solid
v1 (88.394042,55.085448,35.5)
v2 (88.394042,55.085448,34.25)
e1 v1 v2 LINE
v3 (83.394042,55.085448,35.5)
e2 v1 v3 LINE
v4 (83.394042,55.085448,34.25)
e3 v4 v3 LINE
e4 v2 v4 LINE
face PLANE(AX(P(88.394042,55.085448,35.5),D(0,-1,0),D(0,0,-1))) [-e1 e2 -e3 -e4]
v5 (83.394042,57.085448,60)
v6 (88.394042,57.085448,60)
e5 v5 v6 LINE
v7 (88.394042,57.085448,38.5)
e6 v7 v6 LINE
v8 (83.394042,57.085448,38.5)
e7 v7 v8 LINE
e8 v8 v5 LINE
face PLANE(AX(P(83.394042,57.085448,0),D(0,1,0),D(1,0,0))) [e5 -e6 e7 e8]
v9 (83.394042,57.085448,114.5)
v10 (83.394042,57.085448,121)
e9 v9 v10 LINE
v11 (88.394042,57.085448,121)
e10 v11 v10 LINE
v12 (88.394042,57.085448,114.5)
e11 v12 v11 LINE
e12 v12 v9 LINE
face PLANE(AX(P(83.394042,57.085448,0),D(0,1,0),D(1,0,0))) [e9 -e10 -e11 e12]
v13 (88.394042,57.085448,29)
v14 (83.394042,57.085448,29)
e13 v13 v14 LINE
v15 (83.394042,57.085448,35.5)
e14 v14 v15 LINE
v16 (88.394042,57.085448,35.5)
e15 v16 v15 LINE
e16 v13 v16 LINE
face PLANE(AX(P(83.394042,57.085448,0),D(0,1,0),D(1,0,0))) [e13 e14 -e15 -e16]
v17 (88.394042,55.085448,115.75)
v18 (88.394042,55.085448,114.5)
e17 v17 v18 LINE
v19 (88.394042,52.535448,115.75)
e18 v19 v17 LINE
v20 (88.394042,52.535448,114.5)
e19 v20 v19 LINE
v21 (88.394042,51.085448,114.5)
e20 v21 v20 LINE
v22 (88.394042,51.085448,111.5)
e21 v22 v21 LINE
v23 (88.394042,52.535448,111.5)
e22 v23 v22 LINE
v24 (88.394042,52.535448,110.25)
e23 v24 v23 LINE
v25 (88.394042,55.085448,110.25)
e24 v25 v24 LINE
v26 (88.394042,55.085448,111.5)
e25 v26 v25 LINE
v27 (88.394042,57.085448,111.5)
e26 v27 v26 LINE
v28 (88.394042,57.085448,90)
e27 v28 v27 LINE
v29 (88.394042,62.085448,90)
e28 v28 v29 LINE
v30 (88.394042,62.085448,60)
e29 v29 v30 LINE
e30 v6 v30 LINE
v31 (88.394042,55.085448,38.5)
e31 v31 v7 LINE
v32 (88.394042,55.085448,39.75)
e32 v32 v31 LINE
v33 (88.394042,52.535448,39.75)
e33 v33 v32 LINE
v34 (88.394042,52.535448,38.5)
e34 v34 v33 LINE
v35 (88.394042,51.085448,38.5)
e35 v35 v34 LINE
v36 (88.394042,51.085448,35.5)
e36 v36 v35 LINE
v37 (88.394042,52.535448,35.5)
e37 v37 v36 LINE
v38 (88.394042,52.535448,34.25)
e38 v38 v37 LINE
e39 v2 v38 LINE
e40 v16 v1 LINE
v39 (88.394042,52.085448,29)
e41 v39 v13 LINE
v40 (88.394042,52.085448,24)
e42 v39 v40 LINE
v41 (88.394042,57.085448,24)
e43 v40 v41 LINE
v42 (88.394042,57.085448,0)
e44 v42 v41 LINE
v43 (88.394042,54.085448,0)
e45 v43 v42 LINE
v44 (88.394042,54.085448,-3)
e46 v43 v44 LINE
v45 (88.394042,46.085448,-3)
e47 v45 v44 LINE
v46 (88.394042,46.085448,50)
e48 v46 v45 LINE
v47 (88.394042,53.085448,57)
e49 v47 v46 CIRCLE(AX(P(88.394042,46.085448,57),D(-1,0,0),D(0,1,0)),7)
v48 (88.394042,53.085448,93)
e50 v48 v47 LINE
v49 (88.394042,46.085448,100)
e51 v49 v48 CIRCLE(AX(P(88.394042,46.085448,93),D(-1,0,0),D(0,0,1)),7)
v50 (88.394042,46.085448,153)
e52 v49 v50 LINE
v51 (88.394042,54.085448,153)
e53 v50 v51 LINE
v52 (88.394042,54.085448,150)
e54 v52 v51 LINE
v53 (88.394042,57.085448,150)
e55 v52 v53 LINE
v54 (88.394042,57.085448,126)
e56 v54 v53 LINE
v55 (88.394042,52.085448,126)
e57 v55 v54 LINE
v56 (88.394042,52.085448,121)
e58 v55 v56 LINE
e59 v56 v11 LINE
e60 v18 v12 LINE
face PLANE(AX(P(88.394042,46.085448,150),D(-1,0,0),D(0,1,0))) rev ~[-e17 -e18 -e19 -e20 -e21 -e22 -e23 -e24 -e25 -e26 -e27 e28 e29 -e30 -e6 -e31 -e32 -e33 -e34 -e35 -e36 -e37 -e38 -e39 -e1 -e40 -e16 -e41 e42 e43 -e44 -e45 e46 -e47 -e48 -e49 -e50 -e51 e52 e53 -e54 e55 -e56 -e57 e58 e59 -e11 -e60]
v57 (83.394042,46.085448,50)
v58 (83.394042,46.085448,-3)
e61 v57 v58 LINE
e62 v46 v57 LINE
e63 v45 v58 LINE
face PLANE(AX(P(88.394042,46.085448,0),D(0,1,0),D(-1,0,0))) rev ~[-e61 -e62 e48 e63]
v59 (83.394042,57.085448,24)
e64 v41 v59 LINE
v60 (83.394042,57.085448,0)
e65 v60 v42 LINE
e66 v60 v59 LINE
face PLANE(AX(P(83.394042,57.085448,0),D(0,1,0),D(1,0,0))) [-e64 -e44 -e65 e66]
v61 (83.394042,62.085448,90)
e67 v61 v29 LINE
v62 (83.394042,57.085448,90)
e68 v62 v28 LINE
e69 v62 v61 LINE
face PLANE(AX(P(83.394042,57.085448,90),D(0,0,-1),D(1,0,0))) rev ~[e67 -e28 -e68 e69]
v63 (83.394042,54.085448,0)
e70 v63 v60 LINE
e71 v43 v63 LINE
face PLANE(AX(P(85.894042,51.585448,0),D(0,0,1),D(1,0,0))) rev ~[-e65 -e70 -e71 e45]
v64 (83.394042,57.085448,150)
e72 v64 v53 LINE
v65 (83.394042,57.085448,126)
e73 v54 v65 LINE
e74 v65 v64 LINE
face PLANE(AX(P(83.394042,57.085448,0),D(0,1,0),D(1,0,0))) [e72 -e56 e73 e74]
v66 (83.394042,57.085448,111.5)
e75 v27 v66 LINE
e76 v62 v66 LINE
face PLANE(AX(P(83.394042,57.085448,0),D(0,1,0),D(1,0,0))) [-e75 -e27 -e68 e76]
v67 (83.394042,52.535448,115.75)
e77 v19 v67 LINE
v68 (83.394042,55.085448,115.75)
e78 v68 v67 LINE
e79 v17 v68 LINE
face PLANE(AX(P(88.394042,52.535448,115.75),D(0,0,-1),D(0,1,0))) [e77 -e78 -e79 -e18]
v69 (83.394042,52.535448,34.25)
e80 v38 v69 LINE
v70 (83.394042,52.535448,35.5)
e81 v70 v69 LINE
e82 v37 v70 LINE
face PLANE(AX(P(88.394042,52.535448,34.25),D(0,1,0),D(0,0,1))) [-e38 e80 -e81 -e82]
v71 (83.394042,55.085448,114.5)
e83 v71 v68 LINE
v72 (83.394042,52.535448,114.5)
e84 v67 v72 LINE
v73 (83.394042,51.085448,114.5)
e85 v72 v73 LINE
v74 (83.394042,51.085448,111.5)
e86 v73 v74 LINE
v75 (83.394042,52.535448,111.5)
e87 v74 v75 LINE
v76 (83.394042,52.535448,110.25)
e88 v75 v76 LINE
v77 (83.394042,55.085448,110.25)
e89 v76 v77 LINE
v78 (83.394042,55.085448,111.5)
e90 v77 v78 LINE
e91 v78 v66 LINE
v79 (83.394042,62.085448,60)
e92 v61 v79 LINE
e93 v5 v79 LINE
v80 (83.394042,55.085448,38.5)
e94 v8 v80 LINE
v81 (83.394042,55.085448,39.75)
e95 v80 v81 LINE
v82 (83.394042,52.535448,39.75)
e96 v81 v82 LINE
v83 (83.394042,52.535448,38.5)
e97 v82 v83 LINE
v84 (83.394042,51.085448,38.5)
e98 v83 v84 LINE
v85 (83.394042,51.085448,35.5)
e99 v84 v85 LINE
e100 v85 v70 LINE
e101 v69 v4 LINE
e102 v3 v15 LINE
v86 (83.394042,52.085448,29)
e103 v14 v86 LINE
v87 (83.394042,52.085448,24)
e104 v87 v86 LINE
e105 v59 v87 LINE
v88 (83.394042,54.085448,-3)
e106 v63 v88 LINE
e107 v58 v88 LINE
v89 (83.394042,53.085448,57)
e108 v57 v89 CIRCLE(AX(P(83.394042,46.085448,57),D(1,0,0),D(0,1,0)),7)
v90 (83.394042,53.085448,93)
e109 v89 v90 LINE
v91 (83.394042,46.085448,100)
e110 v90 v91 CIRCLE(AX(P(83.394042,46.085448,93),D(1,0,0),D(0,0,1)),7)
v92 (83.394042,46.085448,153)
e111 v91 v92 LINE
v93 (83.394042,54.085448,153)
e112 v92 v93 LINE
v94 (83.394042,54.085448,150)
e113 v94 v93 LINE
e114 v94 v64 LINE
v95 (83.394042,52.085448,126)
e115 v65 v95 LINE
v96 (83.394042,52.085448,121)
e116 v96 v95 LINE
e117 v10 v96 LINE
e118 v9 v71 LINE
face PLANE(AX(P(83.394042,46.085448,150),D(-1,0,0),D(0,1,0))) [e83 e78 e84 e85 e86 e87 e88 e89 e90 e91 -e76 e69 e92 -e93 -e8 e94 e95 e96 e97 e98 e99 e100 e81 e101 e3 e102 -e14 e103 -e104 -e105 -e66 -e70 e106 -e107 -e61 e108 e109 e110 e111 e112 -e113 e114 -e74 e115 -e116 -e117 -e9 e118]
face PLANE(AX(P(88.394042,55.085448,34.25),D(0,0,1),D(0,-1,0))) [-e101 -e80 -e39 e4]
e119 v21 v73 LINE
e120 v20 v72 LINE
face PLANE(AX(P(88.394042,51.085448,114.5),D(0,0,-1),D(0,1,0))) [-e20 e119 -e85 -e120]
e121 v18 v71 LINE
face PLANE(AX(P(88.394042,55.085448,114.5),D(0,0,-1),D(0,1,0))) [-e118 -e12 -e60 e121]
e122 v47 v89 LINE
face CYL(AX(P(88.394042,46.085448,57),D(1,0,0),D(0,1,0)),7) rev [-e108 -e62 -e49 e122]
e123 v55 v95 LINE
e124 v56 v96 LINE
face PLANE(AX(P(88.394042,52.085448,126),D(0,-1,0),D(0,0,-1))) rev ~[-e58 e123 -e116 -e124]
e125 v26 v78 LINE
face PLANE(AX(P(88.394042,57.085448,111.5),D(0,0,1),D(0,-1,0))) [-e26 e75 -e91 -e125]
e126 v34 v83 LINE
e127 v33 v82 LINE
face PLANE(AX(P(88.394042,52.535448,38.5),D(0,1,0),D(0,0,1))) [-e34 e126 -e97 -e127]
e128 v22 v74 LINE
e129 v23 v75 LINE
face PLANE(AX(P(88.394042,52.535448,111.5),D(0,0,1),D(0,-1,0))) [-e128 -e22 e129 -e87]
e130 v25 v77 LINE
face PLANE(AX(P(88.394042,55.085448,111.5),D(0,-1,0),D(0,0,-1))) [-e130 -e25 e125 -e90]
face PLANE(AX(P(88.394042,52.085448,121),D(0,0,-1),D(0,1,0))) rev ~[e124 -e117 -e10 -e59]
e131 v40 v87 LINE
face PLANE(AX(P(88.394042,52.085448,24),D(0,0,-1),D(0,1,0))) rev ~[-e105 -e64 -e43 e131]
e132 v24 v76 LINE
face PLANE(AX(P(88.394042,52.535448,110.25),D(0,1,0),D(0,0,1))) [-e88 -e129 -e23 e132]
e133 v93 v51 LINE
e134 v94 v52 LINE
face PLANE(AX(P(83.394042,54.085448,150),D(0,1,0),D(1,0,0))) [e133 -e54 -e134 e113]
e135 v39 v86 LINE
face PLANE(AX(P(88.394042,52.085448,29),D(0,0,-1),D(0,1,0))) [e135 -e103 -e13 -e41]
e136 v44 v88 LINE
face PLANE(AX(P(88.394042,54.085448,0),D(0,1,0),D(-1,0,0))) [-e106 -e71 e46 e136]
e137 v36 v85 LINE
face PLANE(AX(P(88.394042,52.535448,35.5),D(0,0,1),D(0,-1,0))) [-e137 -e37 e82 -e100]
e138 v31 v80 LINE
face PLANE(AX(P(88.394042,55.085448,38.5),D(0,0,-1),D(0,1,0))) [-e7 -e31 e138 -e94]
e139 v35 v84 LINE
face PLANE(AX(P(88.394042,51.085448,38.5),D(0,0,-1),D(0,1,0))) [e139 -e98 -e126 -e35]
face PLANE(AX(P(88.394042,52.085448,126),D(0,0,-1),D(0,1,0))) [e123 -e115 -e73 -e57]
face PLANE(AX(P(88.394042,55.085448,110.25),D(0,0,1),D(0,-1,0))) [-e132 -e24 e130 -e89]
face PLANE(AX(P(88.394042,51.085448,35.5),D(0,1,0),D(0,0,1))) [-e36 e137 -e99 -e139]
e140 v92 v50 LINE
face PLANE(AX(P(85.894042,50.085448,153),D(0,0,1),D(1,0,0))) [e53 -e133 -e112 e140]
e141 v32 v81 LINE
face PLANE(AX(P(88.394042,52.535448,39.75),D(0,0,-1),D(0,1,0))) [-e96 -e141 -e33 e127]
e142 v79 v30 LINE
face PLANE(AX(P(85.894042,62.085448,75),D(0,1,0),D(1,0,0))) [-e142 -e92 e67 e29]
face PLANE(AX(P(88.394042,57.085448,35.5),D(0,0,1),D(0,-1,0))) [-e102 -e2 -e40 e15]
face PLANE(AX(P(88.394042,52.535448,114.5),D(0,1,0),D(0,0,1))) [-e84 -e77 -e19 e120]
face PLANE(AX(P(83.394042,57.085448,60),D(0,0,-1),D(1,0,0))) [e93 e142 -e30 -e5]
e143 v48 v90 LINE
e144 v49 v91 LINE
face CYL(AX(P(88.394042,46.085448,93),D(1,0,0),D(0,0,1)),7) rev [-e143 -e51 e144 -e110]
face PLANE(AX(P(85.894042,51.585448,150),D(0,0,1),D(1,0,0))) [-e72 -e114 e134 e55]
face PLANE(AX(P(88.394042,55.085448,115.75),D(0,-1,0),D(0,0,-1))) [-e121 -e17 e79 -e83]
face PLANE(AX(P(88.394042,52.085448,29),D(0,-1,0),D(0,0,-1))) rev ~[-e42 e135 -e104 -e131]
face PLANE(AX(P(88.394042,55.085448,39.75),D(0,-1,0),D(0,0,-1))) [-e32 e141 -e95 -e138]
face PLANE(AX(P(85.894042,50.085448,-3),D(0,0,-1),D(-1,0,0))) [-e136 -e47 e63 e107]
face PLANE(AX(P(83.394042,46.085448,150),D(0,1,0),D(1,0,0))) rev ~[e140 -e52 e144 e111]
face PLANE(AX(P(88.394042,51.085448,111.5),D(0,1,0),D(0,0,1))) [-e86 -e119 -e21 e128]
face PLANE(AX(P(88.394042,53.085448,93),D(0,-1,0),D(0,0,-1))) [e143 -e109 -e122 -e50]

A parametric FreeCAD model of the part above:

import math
import FreeCAD as App
import Part
import Sketcher
from FreeCAD import Vector


def add_polygon(sketch, points):
    """Adds a closed chain of lines whose ends are joined by coincident constraints."""
    first, n = sketch.GeometryCount, len(points)
    for a, b in zip(points, points[1:] + points[:1]):
        sketch.addGeometry(Part.LineSegment(App.Vector(*a, 0), App.Vector(*b, 0)), False)
    for i in range(n):
        sketch.addConstraint(Sketcher.Constraint("Coincident", first + i, 2, first + (i + 1) % n, 1))

doc = App.newDocument("Part")
body = doc.addObject("PartDesign::Body", "Body")

# Sketch on XY plane
sketch1 = body.newObject("Sketcher::SketchObject", "Sketch")
sketch1.AttachmentSupport = (doc.getObject("XY_Plane"), [""])
sketch1.MapMode = "FlatFace"
add_polygon(sketch1, [(83.394042, 57.085448), (83.394042, 46.085448), (88.394042, 46.085448), (88.394042, 57.085448)])  # lines 0-3
sketch1.addConstraint([
    Sketcher.Constraint("Vertical", 0),
    Sketcher.Constraint("Horizontal", 1),
    Sketcher.Constraint("Vertical", 2),
    Sketcher.Constraint("Horizontal", 3),
    Sketcher.Constraint("DistanceX", 1, 1, 1, 2, 5.0),
    Sketcher.Constraint("DistanceY", 0, 2, 0, 1, 11.0),
    Sketcher.Constraint("DistanceY", -1, 1, 0, 2, 46.085448),
    Sketcher.Constraint("DistanceX", -1, 1, 0, 2, 83.394042),
])
pad1 = body.newObject("PartDesign::Pad", "Pad")
pad1.Profile = sketch1
pad1.Length = 150

# Sketch on YZ plane
sketch2 = body.newObject("Sketcher::SketchObject", "Sketch001")
sketch2.AttachmentSupport = (doc.getObject("YZ_Plane"), [""])
sketch2.MapMode = "FlatFace"
sketch2.AttachmentOffset = App.Placement(Vector(0, 0, 88.394042), App.Rotation())
sketch2.addGeometry([
    Part.LineSegment(Vector(53.085448, 57, 0), Vector(53.085448, 93, 0)),
    Part.ArcOfCircle(Part.Circle(Vector(46.085448, 93, 0), Vector(0, 0, 1), 7), math.radians(0), math.radians(90)),
    Part.LineSegment(Vector(46.085448, 100, 0), Vector(46.085448, 50, 0)),
    Part.ArcOfCircle(Part.Circle(Vector(46.085448, 57, 0), Vector(0, 0, 1), 7), math.radians(-90), math.radians(0)),
], False)
sketch2.addConstraint([
    Sketcher.Constraint("Tangent", 0, 2, 1, 1),
    Sketcher.Constraint("Coincident", 1, 2, 2, 1),
    Sketcher.Constraint("Coincident", 2, 2, 3, 1),
    Sketcher.Constraint("Tangent", 3, 2, 0, 1),
    Sketcher.Constraint("Vertical", 0),
    Sketcher.Constraint("Vertical", 2),
    Sketcher.Constraint("Equal", 1, 3),
    Sketcher.Constraint("Vertical", 3, 3, 1, 2),
    Sketcher.Constraint("Radius", 1, 7.0),
    Sketcher.Constraint("DistanceY", 0, 1, 0, 2, 36.0),
    Sketcher.Constraint("DistanceY", -1, 1, 1, 3, 93.0),
    Sketcher.Constraint("DistanceX", -1, 1, 1, 3, 46.085448),
])
pocket1 = body.newObject("PartDesign::Pocket", "Pocket")
pocket1.Profile = sketch2
pocket1.Type = "ThroughAll"

# Sketch on XZ plane
sketch3 = body.newObject("Sketcher::SketchObject", "Sketch002")
sketch3.AttachmentSupport = (doc.getObject("XZ_Plane"), [""])
sketch3.MapMode = "FlatFace"
sketch3.AttachmentOffset = App.Placement(Vector(0, 0, -57.085448), App.Rotation())
add_polygon(sketch3, [(83.394042, 60), (83.394042, 90), (88.394042, 90), (88.394042, 60)])  # lines 0-3
sketch3.addConstraint([
    Sketcher.Constraint("Vertical", 0),
    Sketcher.Constraint("Horizontal", 1),
    Sketcher.Constraint("Vertical", 2),
    Sketcher.Constraint("Horizontal", 3),
    Sketcher.Constraint("DistanceX", 1, 1, 1, 2, 5.0),
    Sketcher.Constraint("DistanceY", 0, 1, 0, 2, 30.0),
    Sketcher.Constraint("DistanceY", -1, 1, 0, 2, 90.0),
    Sketcher.Constraint("DistanceX", -1, 1, 0, 2, 83.394042),
])
pad2 = body.newObject("PartDesign::Pad", "Pad001")
pad2.Profile = sketch3
pad2.Length = 5
pad2.Reversed = True

# Sketch on YZ plane
sketch4 = body.newObject("Sketcher::SketchObject", "Sketch003")
sketch4.AttachmentSupport = (doc.getObject("YZ_Plane"), [""])
sketch4.MapMode = "FlatFace"
sketch4.AttachmentOffset = App.Placement(Vector(0, 0, 88.394042), App.Rotation())
add_polygon(sketch4, [(55.085448, 34.25), (55.085448, 35.5), (57.085448, 35.5), (57.085448, 38.5), (55.085448, 38.5), (55.085448, 39.75), (52.535448, 39.75), (52.535448, 38.5), (51.085448, 38.5), (51.085448, 35.5), (52.535448, 35.5), (52.535448, 34.25)])  # lines 0-11
add_polygon(sketch4, [(52.535448, 115.75), (52.535448, 114.5), (51.085448, 114.5), (51.085448, 111.5), (52.535448, 111.5), (52.535448, 110.25), (55.085448, 110.25), (55.085448, 111.5), (57.085448, 111.5), (57.085448, 114.5), (55.085448, 114.5), (55.085448, 115.75)])  # lines 12-23
sketch4.addConstraint([
    Sketcher.Constraint("Vertical", 0),
    Sketcher.Constraint("Horizontal", 1),
    Sketcher.Constraint("Vertical", 2),
    Sketcher.Constraint("Horizontal", 3),
    Sketcher.Constraint("Vertical", 4),
    Sketcher.Constraint("Horizontal", 5),
    Sketcher.Constraint("Vertical", 6),
    Sketcher.Constraint("Horizontal", 7),
    Sketcher.Constraint("Vertical", 8),
    Sketcher.Constraint("Horizontal", 9),
    Sketcher.Constraint("Vertical", 10),
    Sketcher.Constraint("Horizontal", 11),
    Sketcher.Constraint("Vertical", 12),
    Sketcher.Constraint("Horizontal", 13),
    Sketcher.Constraint("Vertical", 14),
    Sketcher.Constraint("Horizontal", 15),
    Sketcher.Constraint("Vertical", 16),
    Sketcher.Constraint("Horizontal", 17),
    Sketcher.Constraint("Vertical", 18),
    Sketcher.Constraint("Horizontal", 19),
    Sketcher.Constraint("Vertical", 20),
    Sketcher.Constraint("Horizontal", 21),
    Sketcher.Constraint("Vertical", 22),
    Sketcher.Constraint("Horizontal", 23),
    Sketcher.Constraint("Horizontal", 3, 2, 6, 2),
    Sketcher.Constraint("Horizontal", 1, 2, 8, 2),
    Sketcher.Constraint("Horizontal", 15, 2, 18, 2),
    Sketcher.Constraint("Horizontal", 13, 2, 20, 2),
    Sketcher.Constraint("Vertical", 0, 2, 3, 2),
    Sketcher.Constraint("Vertical", 6, 2, 9, 2),
    Sketcher.Constraint("Vertical", 10, 2, 12, 2),
    Sketcher.Constraint("Vertical", 8, 2, 13, 2),
    Sketcher.Constraint("Vertical", 12, 2, 15, 2),
    Sketcher.Constraint("Vertical", 11, 2, 17, 2),
    Sketcher.Constraint("Vertical", 2, 2, 19, 2),
    Sketcher.Constraint("Vertical", 18, 2, 21, 2),
    Sketcher.Constraint("Equal", 0, 4),
    Sketcher.Constraint("Equal", 10, 12),
    Sketcher.Constraint("Equal", 8, 14),
    Sketcher.Constraint("Equal", 12, 16),
    Sketcher.Constraint("DistanceX", 1, 1, 1, 2, 2.0),
    Sketcher.Constraint("DistanceY", 2, 1, 2, 2, 3.0),
    Sketcher.Constraint("DistanceX", 7, 2, 3, 2, 4.0),
    Sketcher.Constraint("DistanceY", 6, 2, 12, 2, 76.0),
    Sketcher.Constraint("DistanceX", 5, 2, 5, 1, 2.55),
    Sketcher.Constraint("DistanceY", 0, 1, 0, 2, 1.25),
    Sketcher.Constraint("DistanceY", -1, 1, 0, 2, 35.5),
    Sketcher.Constraint("DistanceX", -1, 1, 0, 2, 55.085448),
])
pocket2 = body.newObject("PartDesign::Pocket", "Pocket001")
pocket2.Profile = sketch4
pocket2.Type = "ThroughAll"

# Sketch on XY plane
sketch5 = body.newObject("Sketcher::SketchObject", "Sketch004")
sketch5.AttachmentSupport = (doc.getObject("XY_Plane"), [""])
sketch5.MapMode = "FlatFace"
add_polygon(sketch5, [(88.394042, 54.085448), (88.394042, 46.085448), (83.394042, 46.085448), (83.394042, 54.085448)])  # lines 0-3
sketch5.addConstraint([
    Sketcher.Constraint("Vertical", 0),
    Sketcher.Constraint("Horizontal", 1),
    Sketcher.Constraint("Vertical", 2),
    Sketcher.Constraint("Horizontal", 3),
    Sketcher.Constraint("DistanceX", 1, 2, 1, 1, 5.0),
    Sketcher.Constraint("DistanceY", 0, 2, 0, 1, 8.0),
    Sketcher.Constraint("DistanceY", -1, 1, 0, 2, 46.085448),
    Sketcher.Constraint("DistanceX", -1, 1, 0, 2, 88.394042),
])
pad3 = body.newObject("PartDesign::Pad", "Pad002")
pad3.Profile = sketch5
pad3.Length = 3
pad3.Reversed = True

# Sketch on XY plane
sketch6 = body.newObject("Sketcher::SketchObject", "Sketch005")
sketch6.AttachmentSupport = (doc.getObject("XY_Plane"), [""])
sketch6.MapMode = "FlatFace"
sketch6.AttachmentOffset = App.Placement(Vector(0, 0, 150), App.Rotation())
add_polygon(sketch6, [(83.394042, 54.085448), (83.394042, 46.085448), (88.394042, 46.085448), (88.394042, 54.085448)])  # lines 0-3
sketch6.addConstraint([
    Sketcher.Constraint("Vertical", 0),
    Sketcher.Constraint("Horizontal", 1),
    Sketcher.Constraint("Vertical", 2),
    Sketcher.Constraint("Horizontal", 3),
    Sketcher.Constraint("DistanceX", 1, 1, 1, 2, 5.0),
    Sketcher.Constraint("DistanceY", 0, 2, 0, 1, 8.0),
    Sketcher.Constraint("DistanceY", -1, 1, 0, 2, 46.085448),
    Sketcher.Constraint("DistanceX", -1, 1, 0, 2, 83.394042),
])
pad4 = body.newObject("PartDesign::Pad", "Pad003")
pad4.Profile = sketch6
pad4.Length = 3

# Sketch on YZ plane
sketch7 = body.newObject("Sketcher::SketchObject", "Sketch006")
sketch7.AttachmentSupport = (doc.getObject("YZ_Plane"), [""])
sketch7.MapMode = "FlatFace"
sketch7.AttachmentOffset = App.Placement(Vector(0, 0, 88.394042), App.Rotation())
add_polygon(sketch7, [(57.085448, 126), (52.085448, 126), (52.085448, 121), (57.085448, 121)])  # lines 0-3
add_polygon(sketch7, [(57.085448, 29), (52.085448, 29), (52.085448, 24), (57.085448, 24)])  # lines 4-7
sketch7.addConstraint([
    Sketcher.Constraint("Horizontal", 0),
    Sketcher.Constraint("Vertical", 1),
    Sketcher.Constraint("Horizontal", 2),
    Sketcher.Constraint("Vertical", 3),
    Sketcher.Constraint("Horizontal", 4),
    Sketcher.Constraint("Vertical", 5),
    Sketcher.Constraint("Horizontal", 6),
    Sketcher.Constraint("Vertical", 7),
    Sketcher.Constraint("Vertical", 1, 2, 4, 2),
    Sketcher.Constraint("Vertical", 3, 2, 6, 2),
    Sketcher.Constraint("Equal", 6, 1),
    Sketcher.Constraint("Equal", 3, 5),
    Sketcher.Constraint("DistanceX", 0, 2, 0, 1, 5.0),
    Sketcher.Constraint("DistanceY", -1, 1, 0, 2, 126.0),
    Sketcher.Constraint("DistanceY", -1, 1, 4, 2, 29.0),
    Sketcher.Constraint("DistanceX", -1, 1, 0, 2, 52.085448),
])
pocket3 = body.newObject("PartDesign::Pocket", "Pocket002")
pocket3.Profile = sketch7
pocket3.Type = "ThroughAll"

doc.recompute()
